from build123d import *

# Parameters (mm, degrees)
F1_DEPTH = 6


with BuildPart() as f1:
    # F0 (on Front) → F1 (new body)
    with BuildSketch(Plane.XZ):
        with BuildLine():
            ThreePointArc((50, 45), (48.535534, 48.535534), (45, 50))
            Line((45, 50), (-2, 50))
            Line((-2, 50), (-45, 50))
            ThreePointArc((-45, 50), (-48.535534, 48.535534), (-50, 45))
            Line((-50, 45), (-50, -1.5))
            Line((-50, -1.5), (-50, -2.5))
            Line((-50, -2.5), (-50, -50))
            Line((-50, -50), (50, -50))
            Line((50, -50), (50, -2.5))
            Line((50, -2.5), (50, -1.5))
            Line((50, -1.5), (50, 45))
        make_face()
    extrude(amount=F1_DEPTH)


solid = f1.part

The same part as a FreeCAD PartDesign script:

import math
import FreeCAD as App
import Part
import Sketcher
Q = App.Units.Quantity

doc = App.newDocument("Part")
body = doc.addObject("PartDesign::Body", "Body")

sketch1 = doc.addObject("Sketcher::SketchObject", "Sketch")
body.addObject(sketch1)
sketch1.AttachmentSupport = (doc.XZ_Plane, [""])
sketch1.MapMode = "FlatFace"
sketch1.addGeometry(Part.ArcOfCircle(Part.Circle(App.Vector(45, 45, 0), App.Vector(0, 0, 1), 5), math.radians(-0.000004), math.radians(90.000004)), False)
sketch1.addGeometry(Part.LineSegment(App.Vector(45, 50, 0), App.Vector(-45, 50, 0)), False)
sketch1.addGeometry(Part.ArcOfCircle(Part.Circle(App.Vector(-45, 45, 0), App.Vector(0, 0, 1), 5), math.radians(89.999996), math.radians(180.000004)), False)
sketch1.addGeometry(Part.LineSegment(App.Vector(-50, 45, 0), App.Vector(-50, -50, 0)), False)
sketch1.addGeometry(Part.LineSegment(App.Vector(-50, -50, 0), App.Vector(50, -50, 0)), False)
sketch1.addGeometry(Part.LineSegment(App.Vector(50, -50, 0), App.Vector(50, 45, 0)), False)
sketch1.addConstraint(Sketcher.Constraint("Tangent", 0, 2, 1, 1))
sketch1.addConstraint(Sketcher.Constraint("Tangent", 1, 2, 2, 1))
sketch1.addConstraint(Sketcher.Constraint("Tangent", 2, 2, 3, 1))
sketch1.addConstraint(Sketcher.Constraint("Coincident", 3, 2, 4, 1))
sketch1.addConstraint(Sketcher.Constraint("Coincident", 4, 2, 5, 1))
sketch1.addConstraint(Sketcher.Constraint("Tangent", 5, 2, 0, 1))
sketch1.addConstraint(Sketcher.Constraint("Horizontal", 1))
sketch1.addConstraint(Sketcher.Constraint("Vertical", 3))
sketch1.addConstraint(Sketcher.Constraint("Horizontal", 4))
sketch1.addConstraint(Sketcher.Constraint("Vertical", 5))
sketch1.addConstraint(Sketcher.Constraint("Equal", 0, 2))
sketch1.addConstraint(Sketcher.Constraint("Radius", 0, Q("5 mm")))
sketch1.addConstraint(Sketcher.Constraint("DistanceX", 1, 2, 1, 1, Q("90 mm")))
sketch1.addConstraint(Sketcher.Constraint("DistanceY", 3, 2, 3, 1, Q("95 mm")))
sketch1.addConstraint(Sketcher.Constraint("DistanceX", -1, 1, 0, 3, Q("45 mm")))
sketch1.addConstraint(Sketcher.Constraint("DistanceY", -1, 1, 0, 3, Q("45 mm")))
pad1 = doc.addObject("PartDesign::Pad", "Pad")
body.addObject(pad1)
pad1.Profile = sketch1
pad1.Length = 6

doc.recompute()
